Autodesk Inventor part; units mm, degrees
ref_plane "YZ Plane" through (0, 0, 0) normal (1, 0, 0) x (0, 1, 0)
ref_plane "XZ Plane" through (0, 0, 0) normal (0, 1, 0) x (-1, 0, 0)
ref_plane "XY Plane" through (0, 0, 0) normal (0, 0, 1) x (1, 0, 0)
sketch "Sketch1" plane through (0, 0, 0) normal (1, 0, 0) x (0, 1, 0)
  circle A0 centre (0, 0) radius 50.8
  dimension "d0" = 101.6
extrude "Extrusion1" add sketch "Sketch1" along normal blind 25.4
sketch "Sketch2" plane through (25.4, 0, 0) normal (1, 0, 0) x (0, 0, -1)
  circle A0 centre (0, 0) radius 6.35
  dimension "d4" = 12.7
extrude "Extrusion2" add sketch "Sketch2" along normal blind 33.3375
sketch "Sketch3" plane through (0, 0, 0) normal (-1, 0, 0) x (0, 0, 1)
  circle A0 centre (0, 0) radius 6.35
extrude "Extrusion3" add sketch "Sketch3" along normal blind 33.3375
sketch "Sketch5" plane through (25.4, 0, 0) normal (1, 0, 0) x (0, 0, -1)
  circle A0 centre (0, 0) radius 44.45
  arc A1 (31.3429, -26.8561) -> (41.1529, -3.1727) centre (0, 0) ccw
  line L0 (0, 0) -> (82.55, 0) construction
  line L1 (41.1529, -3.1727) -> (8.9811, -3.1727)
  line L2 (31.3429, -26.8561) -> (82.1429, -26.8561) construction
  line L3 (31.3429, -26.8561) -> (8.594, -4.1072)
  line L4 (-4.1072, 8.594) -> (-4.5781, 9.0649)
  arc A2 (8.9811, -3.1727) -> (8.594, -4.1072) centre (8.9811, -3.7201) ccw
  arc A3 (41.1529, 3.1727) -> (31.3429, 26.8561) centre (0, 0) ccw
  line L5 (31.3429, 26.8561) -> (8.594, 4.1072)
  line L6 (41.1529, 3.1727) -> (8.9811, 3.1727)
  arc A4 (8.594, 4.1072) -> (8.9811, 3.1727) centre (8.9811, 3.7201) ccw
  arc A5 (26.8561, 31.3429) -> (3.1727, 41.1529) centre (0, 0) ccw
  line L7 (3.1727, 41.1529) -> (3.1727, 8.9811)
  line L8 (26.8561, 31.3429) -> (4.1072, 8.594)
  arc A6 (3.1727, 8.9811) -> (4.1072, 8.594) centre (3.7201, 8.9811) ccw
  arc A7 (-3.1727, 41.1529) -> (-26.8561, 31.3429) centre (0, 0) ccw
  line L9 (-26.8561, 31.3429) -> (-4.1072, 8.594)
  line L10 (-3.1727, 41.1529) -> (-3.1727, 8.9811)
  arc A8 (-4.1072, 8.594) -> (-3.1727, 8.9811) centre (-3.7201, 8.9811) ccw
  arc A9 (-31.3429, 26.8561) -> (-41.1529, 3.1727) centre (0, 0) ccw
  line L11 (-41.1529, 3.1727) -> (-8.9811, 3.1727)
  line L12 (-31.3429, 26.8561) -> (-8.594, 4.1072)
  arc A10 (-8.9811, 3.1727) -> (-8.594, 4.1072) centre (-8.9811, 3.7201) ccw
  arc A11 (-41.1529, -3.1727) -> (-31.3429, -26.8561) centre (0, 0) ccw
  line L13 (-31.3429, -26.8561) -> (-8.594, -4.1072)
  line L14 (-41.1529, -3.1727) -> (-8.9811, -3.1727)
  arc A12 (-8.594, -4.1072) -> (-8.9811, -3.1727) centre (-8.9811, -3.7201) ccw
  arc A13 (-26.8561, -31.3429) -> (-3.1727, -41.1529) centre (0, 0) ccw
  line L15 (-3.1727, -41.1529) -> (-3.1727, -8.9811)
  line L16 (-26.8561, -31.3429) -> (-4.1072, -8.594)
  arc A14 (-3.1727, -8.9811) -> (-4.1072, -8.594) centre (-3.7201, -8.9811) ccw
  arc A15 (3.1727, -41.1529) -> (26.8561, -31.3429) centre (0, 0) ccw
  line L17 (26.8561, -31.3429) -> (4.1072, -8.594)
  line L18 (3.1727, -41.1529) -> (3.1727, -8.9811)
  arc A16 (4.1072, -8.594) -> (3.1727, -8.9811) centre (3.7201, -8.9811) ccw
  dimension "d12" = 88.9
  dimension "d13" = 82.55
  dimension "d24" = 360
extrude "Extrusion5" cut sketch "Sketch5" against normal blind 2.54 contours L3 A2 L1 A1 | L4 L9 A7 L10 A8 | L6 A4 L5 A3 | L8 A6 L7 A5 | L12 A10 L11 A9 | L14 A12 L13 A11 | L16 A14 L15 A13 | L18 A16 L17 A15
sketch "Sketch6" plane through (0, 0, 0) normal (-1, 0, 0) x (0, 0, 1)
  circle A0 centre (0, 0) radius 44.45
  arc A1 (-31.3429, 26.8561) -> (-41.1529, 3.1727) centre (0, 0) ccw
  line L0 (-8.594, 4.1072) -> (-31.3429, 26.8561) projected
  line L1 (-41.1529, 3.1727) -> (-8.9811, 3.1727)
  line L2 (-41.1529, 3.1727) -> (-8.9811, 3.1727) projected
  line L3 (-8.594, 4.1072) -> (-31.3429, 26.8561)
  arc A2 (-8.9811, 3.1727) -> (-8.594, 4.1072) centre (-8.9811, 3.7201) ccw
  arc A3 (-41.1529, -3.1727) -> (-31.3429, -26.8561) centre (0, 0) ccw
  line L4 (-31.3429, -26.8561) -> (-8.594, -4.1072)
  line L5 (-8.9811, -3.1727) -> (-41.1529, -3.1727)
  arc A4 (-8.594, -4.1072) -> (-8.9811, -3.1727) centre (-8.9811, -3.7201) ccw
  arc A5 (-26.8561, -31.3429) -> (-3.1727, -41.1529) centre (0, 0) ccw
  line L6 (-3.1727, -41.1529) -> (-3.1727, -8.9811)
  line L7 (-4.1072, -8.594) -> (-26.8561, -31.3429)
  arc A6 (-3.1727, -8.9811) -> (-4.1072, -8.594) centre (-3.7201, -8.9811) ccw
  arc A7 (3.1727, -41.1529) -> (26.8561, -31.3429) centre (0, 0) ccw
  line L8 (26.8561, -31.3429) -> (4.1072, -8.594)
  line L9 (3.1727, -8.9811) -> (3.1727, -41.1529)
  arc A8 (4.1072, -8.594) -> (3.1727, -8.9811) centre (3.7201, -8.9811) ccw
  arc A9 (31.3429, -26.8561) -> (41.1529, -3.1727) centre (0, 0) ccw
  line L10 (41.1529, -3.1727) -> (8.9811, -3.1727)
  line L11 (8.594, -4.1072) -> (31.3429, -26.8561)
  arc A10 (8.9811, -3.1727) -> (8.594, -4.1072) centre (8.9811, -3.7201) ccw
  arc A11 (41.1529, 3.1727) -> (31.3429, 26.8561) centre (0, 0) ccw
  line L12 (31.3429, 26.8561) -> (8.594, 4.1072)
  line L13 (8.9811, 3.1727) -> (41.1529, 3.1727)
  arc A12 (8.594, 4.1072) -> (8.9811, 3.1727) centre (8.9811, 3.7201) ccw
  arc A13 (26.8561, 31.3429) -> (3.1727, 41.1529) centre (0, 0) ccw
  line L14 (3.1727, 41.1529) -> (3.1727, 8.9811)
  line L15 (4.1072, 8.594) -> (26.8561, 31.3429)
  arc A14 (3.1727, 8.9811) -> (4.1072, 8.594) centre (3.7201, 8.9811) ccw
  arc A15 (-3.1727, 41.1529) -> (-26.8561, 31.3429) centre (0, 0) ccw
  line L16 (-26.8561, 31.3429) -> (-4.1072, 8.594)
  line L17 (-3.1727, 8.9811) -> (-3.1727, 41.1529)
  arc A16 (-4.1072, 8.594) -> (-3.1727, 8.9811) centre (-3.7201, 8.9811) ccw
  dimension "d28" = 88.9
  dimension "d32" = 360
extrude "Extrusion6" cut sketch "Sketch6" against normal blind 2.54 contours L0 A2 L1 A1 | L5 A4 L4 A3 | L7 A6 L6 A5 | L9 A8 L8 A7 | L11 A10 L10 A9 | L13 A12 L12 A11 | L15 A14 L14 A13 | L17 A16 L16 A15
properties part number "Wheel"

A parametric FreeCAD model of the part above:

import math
import FreeCAD as App
import Part
import Sketcher
from FreeCAD import Vector
Q = App.Units.Quantity

doc = App.newDocument("Part")
params = doc.addObject("Spreadsheet::Sheet", "Params")
for row, (alias, value) in enumerate([
    ("sketch1_diameter", "4 in"),
    ("pad1_length", "1 in"),
    ("sketch2_diameter", "0.5 in"),
    ("pad2_length", "1.3125 in"),
    ("sketch3_diameter", "0.5 in"),
    ("pad3_length", "1.3125 in"),
    ("sketch4_radius", "1.625 in"),
    ("pocket1_length", "0.1 in"),
    ("sketch5_radius", "1.625 in"),
    ("pocket2_length", "0.1 in"),
], start=1):
    params.set(f"A{row}", alias)
    params.set(f"B{row}", "=" + value)
    params.setAlias(f"B{row}", alias)

body = doc.addObject("PartDesign::Body", "Body")

sketch1 = body.newObject("Sketcher::SketchObject", "Sketch")
sketch1.AttachmentSupport = (doc.getObject("YZ_Plane"), [""])
sketch1.MapMode = "FlatFace"
sketch1.addGeometry(Part.Circle(Vector(0, 0, 0), Vector(0, 0, 1), 50.8), False)
sketch1.addConstraint([
    Sketcher.Constraint("Coincident", 0, 3, -1, 1),
    Sketcher.Constraint("Diameter", 0, Q("4 in")),
])
sketch1.setExpression("Constraints[1]", "Params.sketch1_diameter")
pad1 = body.newObject("PartDesign::Pad", "Pad")
pad1.Profile = sketch1
pad1.setExpression("Length", "Params.pad1_length")

sketch2 = body.newObject("Sketcher::SketchObject", "Sketch001")
sketch2.AttachmentSupport = (doc.getObject("YZ_Plane"), [""])
sketch2.MapMode = "FlatFace"
sketch2.AttachmentOffset = App.Placement(Vector(0, 0, 1 * 25.4), App.Rotation())
sketch2.addGeometry(Part.Circle(Vector(0, 0, 0), Vector(0, 0, 1), 6.35), False)
sketch2.addConstraint([
    Sketcher.Constraint("Coincident", 0, 3, -1, 1),
    Sketcher.Constraint("Diameter", 0, Q("0.5 in")),
])
sketch2.setExpression("Constraints[1]", "Params.sketch2_diameter")
pad2 = body.newObject("PartDesign::Pad", "Pad001")
pad2.Profile = sketch2
pad2.setExpression("Length", "Params.pad2_length")

sketch3 = body.newObject("Sketcher::SketchObject", "Sketch002")
sketch3.AttachmentSupport = (doc.getObject("YZ_Plane"), [""])
sketch3.MapMode = "FlatFace"
sketch3.addGeometry(Part.Circle(Vector(0, 0, 0), Vector(0, 0, 1), 6.35), False)
sketch3.addConstraint([
    Sketcher.Constraint("Coincident", 0, 3, -1, 1),
    Sketcher.Constraint("Diameter", 0, Q("0.5 in")),
])
sketch3.setExpression("Constraints[1]", "Params.sketch3_diameter")
pad3 = body.newObject("PartDesign::Pad", "Pad002")
pad3.Profile = sketch3
pad3.setExpression("Length", "Params.pad3_length")
pad3.Reversed = True

sketch4 = body.newObject("Sketcher::SketchObject", "Sketch003")
sketch4.AttachmentSupport = (doc.getObject("YZ_Plane"), [""])
sketch4.MapMode = "FlatFace"
sketch4.AttachmentOffset = App.Placement(Vector(0, 0, 1 * 25.4), App.Rotation())
sketch4.addGeometry([
    Part.LineSegment(Vector(-4.1072, -8.594, 0), Vector(-26.8561, -31.3429, 0)),
    Part.ArcOfCircle(Part.Circle(Vector(0, 0, 0), Vector(0, 0, 1), 41.275019), math.radians(-130.591553), math.radians(-94.408522)),
    Part.LineSegment(Vector(-3.1727, -41.1529, 0), Vector(-3.1727, -8.9811, 0)),
    Part.ArcOfCircle(Part.Circle(Vector(-3.7201, -8.9811, 0), Vector(0, 0, 1), 0.5474), math.radians(0), math.radians(135)),
    Part.LineSegment(Vector(31.3429, 26.8561, 0), Vector(8.594, 4.1072, 0)),
    Part.ArcOfCircle(Part.Circle(Vector(8.9811, 3.7201, 0), Vector(0, 0, 1), 0.547442), math.radians(135), math.radians(270)),
    Part.LineSegment(Vector(8.9811, 3.1727, 0), Vector(41.1529, 3.1727, 0)),
    Part.ArcOfCircle(Part.Circle(Vector(0, 0, 0), Vector(0, 0, 1), 41.275023), math.radians(4.408522), math.radians(40.591553)),
    Part.LineSegment(Vector(3.1727, -8.9811, 0), Vector(3.1727, -41.1529, 0)),
    Part.ArcOfCircle(Part.Circle(Vector(0, 0, 0), Vector(0, 0, 1), 41.275023), math.radians(-85.591478), math.radians(-49.408447)),
    Part.LineSegment(Vector(26.8561, -31.3429, 0), Vector(4.1072, -8.594, 0)),
    Part.ArcOfCircle(Part.Circle(Vector(3.7201, -8.9811, 0), Vector(0, 0, 1), 0.547442), math.radians(45), math.radians(180)),
    Part.LineSegment(Vector(8.594, -4.1072, 0), Vector(31.3429, -26.8561, 0)),
    Part.ArcOfCircle(Part.Circle(Vector(0, 0, 0), Vector(0, 0, 1), 41.275019), math.radians(-40.591553), math.radians(-4.408522)),
    Part.LineSegment(Vector(41.1529, -3.1727, 0), Vector(8.9811, -3.1727, 0)),
    Part.ArcOfCircle(Part.Circle(Vector(8.9811, -3.7201, 0), Vector(0, 0, 1), 0.5474), math.radians(90), math.radians(225)),
    Part.LineSegment(Vector(4.1072, 8.594, 0), Vector(26.8561, 31.3429, 0)),
    Part.ArcOfCircle(Part.Circle(Vector(0, 0, 0), Vector(0, 0, 1), 41.275019), math.radians(49.408447), math.radians(85.591478)),
    Part.LineSegment(Vector(3.1727, 41.1529, 0), Vector(3.1727, 8.9811, 0)),
    Part.ArcOfCircle(Part.Circle(Vector(3.7201, 8.9811, 0), Vector(0, 0, 1), 0.5474), math.radians(180), math.radians(315)),
    Part.LineSegment(Vector(-3.1727, 8.9811, 0), Vector(-3.1727, 41.1529, 0)),
    Part.ArcOfCircle(Part.Circle(Vector(0, 0, 0), Vector(0, 0, 1), 41.275023), math.radians(94.408522), math.radians(130.591553)),
    Part.LineSegment(Vector(-26.8561, 31.3429, 0), Vector(-4.1072, 8.594, 0)),
    Part.ArcOfCircle(Part.Circle(Vector(-3.7201, 8.9811, 0), Vector(0, 0, 1), 0.547442), math.radians(-135), math.radians(0)),
    Part.LineSegment(Vector(-8.594, 4.1072, 0), Vector(-31.3429, 26.8561, 0)),
    Part.ArcOfCircle(Part.Circle(Vector(0, 0, 0), Vector(0, 0, 1), 41.275019), math.radians(139.408447), math.radians(175.591478)),
    Part.LineSegment(Vector(-41.1529, 3.1727, 0), Vector(-8.9811, 3.1727, 0)),
    Part.ArcOfCircle(Part.Circle(Vector(-8.9811, 3.7201, 0), Vector(0, 0, 1), 0.5474), math.radians(-90), math.radians(45)),
    Part.LineSegment(Vector(-8.9811, -3.1727, 0), Vector(-41.1529, -3.1727, 0)),
    Part.ArcOfCircle(Part.Circle(Vector(0, 0, 0), Vector(0, 0, 1), 41.275023), math.radians(-175.591478), math.radians(-139.408447)),
    Part.LineSegment(Vector(-31.3429, -26.8561, 0), Vector(-8.594, -4.1072, 0)),
    Part.ArcOfCircle(Part.Circle(Vector(-8.9811, -3.7201, 0), Vector(0, 0, 1), 0.547442), math.radians(-45), math.radians(90)),
], False)
sketch4.addConstraint([
    Sketcher.Constraint("Coincident", 0, 2, 1, 1),
    Sketcher.Constraint("Coincident", 1, 2, 2, 1),
    Sketcher.Constraint("Tangent", 2, 2, 3, 1),
    Sketcher.Constraint("Tangent", 3, 2, 0, 1),
    Sketcher.Constraint("Tangent", 4, 2, 5, 1),
    Sketcher.Constraint("Tangent", 5, 2, 6, 1),
    Sketcher.Constraint("Coincident", 6, 2, 7, 1),
    Sketcher.Constraint("Coincident", 7, 2, 4, 1),
    Sketcher.Constraint("Coincident", 8, 2, 9, 1),
    Sketcher.Constraint("Coincident", 9, 2, 10, 1),
    Sketcher.Constraint("Tangent", 10, 2, 11, 1),
    Sketcher.Constraint("Tangent", 11, 2, 8, 1),
    Sketcher.Constraint("Coincident", 12, 2, 13, 1),
    Sketcher.Constraint("Coincident", 13, 2, 14, 1),
    Sketcher.Constraint("Tangent", 14, 2, 15, 1),
    Sketcher.Constraint("Tangent", 15, 2, 12, 1),
    Sketcher.Constraint("Coincident", 16, 2, 17, 1),
    Sketcher.Constraint("Coincident", 17, 2, 18, 1),
    Sketcher.Constraint("Tangent", 18, 2, 19, 1),
    Sketcher.Constraint("Tangent", 19, 2, 16, 1),
    Sketcher.Constraint("Coincident", 20, 2, 21, 1),
    Sketcher.Constraint("Coincident", 21, 2, 22, 1),
    Sketcher.Constraint("Tangent", 22, 2, 23, 1),
    Sketcher.Constraint("Tangent", 23, 2, 20, 1),
    Sketcher.Constraint("Coincident", 24, 2, 25, 1),
    Sketcher.Constraint("Coincident", 25, 2, 26, 1),
    Sketcher.Constraint("Tangent", 26, 2, 27, 1),
    Sketcher.Constraint("Tangent", 27, 2, 24, 1),
    Sketcher.Constraint("Coincident", 28, 2, 29, 1),
    Sketcher.Constraint("Coincident", 29, 2, 30, 1),
    Sketcher.Constraint("Tangent", 30, 2, 31, 1),
    Sketcher.Constraint("Tangent", 31, 2, 28, 1),
    Sketcher.Constraint("Vertical", 2),
    Sketcher.Constraint("Horizontal", 6),
    Sketcher.Constraint("Vertical", 8),
    Sketcher.Constraint("Horizontal", 14),
    Sketcher.Constraint("Vertical", 18),
    Sketcher.Constraint("Vertical", 20),
    Sketcher.Constraint("Horizontal", 26),
    Sketcher.Constraint("Horizontal", 28),
    Sketcher.Constraint("Coincident", 1, 3, -1, 1),
    Sketcher.Constraint("Coincident", 7, 3, -1, 1),
    Sketcher.Constraint("Coincident", 9, 3, -1, 1),
    Sketcher.Constraint("Coincident", 13, 3, -1, 1),
    Sketcher.Constraint("Coincident", 17, 3, -1, 1),
    Sketcher.Constraint("Coincident", 21, 3, -1, 1),
    Sketcher.Constraint("Coincident", 25, 3, -1, 1),
    Sketcher.Constraint("Coincident", 29, 3, -1, 1),
    Sketcher.Constraint("Equal", 3, 5),
    Sketcher.Constraint("Equal", 1, 7),
    Sketcher.Constraint("Equal", 7, 9),
    Sketcher.Constraint("Equal", 5, 11),
    Sketcher.Constraint("Equal", 9, 13),
    Sketcher.Constraint("Equal", 11, 15),
    Sketcher.Constraint("Equal", 13, 17),
    Sketcher.Constraint("Equal", 15, 19),
    Sketcher.Constraint("Equal", 17, 21),
    Sketcher.Constraint("Equal", 19, 23),
    Sketcher.Constraint("Equal", 21, 25),
    Sketcher.Constraint("Equal", 23, 27),
    Sketcher.Constraint("Equal", 25, 29),
    Sketcher.Constraint("Equal", 27, 31),
    Sketcher.Constraint("Symmetric", 3, 3, 19, 3, -1, 1),
    Sketcher.Constraint("Symmetric", 11, 3, 23, 3, -1, 1),
    Sketcher.Constraint("Symmetric", 15, 3, 27, 3, -1, 1),
    Sketcher.Constraint("Symmetric", 5, 3, 31, 3, -1, 1),
    Sketcher.Constraint("Symmetric", 3, 3, 11, 3, -2),
    Sketcher.Constraint("Symmetric", 5, 3, 27, 3, -2),
    Sketcher.Constraint("Parallel", 0, 4),
    Sketcher.Constraint("Perpendicular", 4, 10),
    Sketcher.Constraint("Parallel", 10, 12),
    Sketcher.Constraint("Perpendicular", 12, 16),
    Sketcher.Constraint("Perpendicular", 16, 22),
    Sketcher.Constraint("Parallel", 22, 24),
    Sketcher.Constraint("Perpendicular", 24, 30),
    Sketcher.Constraint("Horizontal", 0, 2, 9, 2),
    Sketcher.Constraint("Equal", 28, 2),
    Sketcher.Constraint("Equal", 0, 4),
    Sketcher.Constraint("Radius", 1, Q("1.625 in")),
    Sketcher.Constraint("Radius", 3, 0.5474),
    Sketcher.Constraint("DistanceX", 6, 1, 6, 2, Q("1.2666 in")),
    Sketcher.Constraint("Distance", 0, Q("1.2666 in")),
])
sketch4.setExpression("Constraints[78]", "Params.sketch4_radius")
pocket1 = body.newObject("PartDesign::Pocket", "Pocket")
pocket1.Profile = sketch4
pocket1.setExpression("Length", "Params.pocket1_length")

sketch5 = body.newObject("Sketcher::SketchObject", "Sketch004")
sketch5.AttachmentSupport = (doc.getObject("YZ_Plane"), [""])
sketch5.MapMode = "FlatFace"
sketch5.addGeometry([
    Part.LineSegment(Vector(4.1072, -8.594, 0), Vector(26.8561, -31.3429, 0)),
    Part.ArcOfCircle(Part.Circle(Vector(0, 0, 0), Vector(0, 0, 1), 41.275019), math.radians(-85.591478), math.radians(-49.408447)),
    Part.LineSegment(Vector(3.1727, -41.1529, 0), Vector(3.1727, -8.9811, 0)),
    Part.ArcOfCircle(Part.Circle(Vector(3.7201, -8.9811, 0), Vector(0, 0, 1), 0.5474), math.radians(45), math.radians(180)),
    Part.LineSegment(Vector(-3.1727, -8.9811, 0), Vector(-3.1727, -41.1529, 0)),
    Part.ArcOfCircle(Part.Circle(Vector(0, 0, 0), Vector(0, 0, 1), 41.275023), math.radians(-130.591553), math.radians(-94.408522)),
    Part.LineSegment(Vector(-26.8561, -31.3429, 0), Vector(-4.1072, -8.594, 0)),
    Part.ArcOfCircle(Part.Circle(Vector(-3.7201, -8.9811, 0), Vector(0, 0, 1), 0.547442), math.radians(0), math.radians(135)),
    Part.LineSegment(Vector(-8.594, -4.1072, 0), Vector(-31.3429, -26.8561, 0)),
    Part.ArcOfCircle(Part.Circle(Vector(0, 0, 0), Vector(0, 0, 1), 41.275019), math.radians(-175.591478), math.radians(-139.408447)),
    Part.LineSegment(Vector(-41.1529, -3.1727, 0), Vector(-8.9811, -3.1727, 0)),
    Part.ArcOfCircle(Part.Circle(Vector(-8.9811, -3.7201, 0), Vector(0, 0, 1), 0.5474), math.radians(-45), math.radians(90)),
    Part.LineSegment(Vector(-8.9811, 3.1727, 0), Vector(-41.1529, 3.1727, 0)),
    Part.ArcOfCircle(Part.Circle(Vector(0, 0, 0), Vector(0, 0, 1), 41.275023), math.radians(139.408447), math.radians(175.591478)),
    Part.LineSegment(Vector(-31.3429, 26.8561, 0), Vector(-8.594, 4.1072, 0)),
    Part.ArcOfCircle(Part.Circle(Vector(-8.9811, 3.7201, 0), Vector(0, 0, 1), 0.547442), math.radians(-90), math.radians(45)),
    Part.LineSegment(Vector(-4.1072, 8.594, 0), Vector(-26.8561, 31.3429, 0)),
    Part.ArcOfCircle(Part.Circle(Vector(0, 0, 0), Vector(0, 0, 1), 41.275019), math.radians(94.408522), math.radians(130.591553)),
    Part.LineSegment(Vector(-3.1727, 41.1529, 0), Vector(-3.1727, 8.9811, 0)),
    Part.ArcOfCircle(Part.Circle(Vector(-3.7201, 8.9811, 0), Vector(0, 0, 1), 0.5474), math.radians(-135), math.radians(0)),
    Part.LineSegment(Vector(3.1727, 8.9811, 0), Vector(3.1727, 41.1529, 0)),
    Part.ArcOfCircle(Part.Circle(Vector(0, 0, 0), Vector(0, 0, 1), 41.275023), math.radians(49.408447), math.radians(85.591478)),
    Part.LineSegment(Vector(26.8561, 31.3429, 0), Vector(4.1072, 8.594, 0)),
    Part.ArcOfCircle(Part.Circle(Vector(3.7201, 8.9811, 0), Vector(0, 0, 1), 0.547442), math.radians(180), math.radians(315)),
    Part.LineSegment(Vector(8.594, 4.1072, 0), Vector(31.3429, 26.8561, 0)),
    Part.ArcOfCircle(Part.Circle(Vector(0, 0, 0), Vector(0, 0, 1), 41.275019), math.radians(4.408522), math.radians(40.591553)),
    Part.LineSegment(Vector(41.1529, 3.1727, 0), Vector(8.9811, 3.1727, 0)),
    Part.ArcOfCircle(Part.Circle(Vector(8.9811, 3.7201, 0), Vector(0, 0, 1), 0.5474), math.radians(135), math.radians(270)),
    Part.LineSegment(Vector(8.9811, -3.1727, 0), Vector(41.1529, -3.1727, 0)),
    Part.ArcOfCircle(Part.Circle(Vector(0, 0, 0), Vector(0, 0, 1), 41.275023), math.radians(-40.591553), math.radians(-4.408522)),
    Part.LineSegment(Vector(31.3429, -26.8561, 0), Vector(8.594, -4.1072, 0)),
    Part.ArcOfCircle(Part.Circle(Vector(8.9811, -3.7201, 0), Vector(0, 0, 1), 0.547442), math.radians(90), math.radians(225)),
], False)
sketch5.addConstraint([
    Sketcher.Constraint("Coincident", 0, 2, 1, 2),
    Sketcher.Constraint("Coincident", 1, 1, 2, 1),
    Sketcher.Constraint("Tangent", 2, 2, 3, 2),
    Sketcher.Constraint("Tangent", 3, 1, 0, 1),
    Sketcher.Constraint("Coincident", 4, 2, 5, 2),
    Sketcher.Constraint("Coincident", 5, 1, 6, 1),
    Sketcher.Constraint("Tangent", 6, 2, 7, 2),
    Sketcher.Constraint("Tangent", 7, 1, 4, 1),
    Sketcher.Constraint("Coincident", 8, 2, 9, 2),
    Sketcher.Constraint("Coincident", 9, 1, 10, 1),
    Sketcher.Constraint("Tangent", 10, 2, 11, 2),
    Sketcher.Constraint("Tangent", 11, 1, 8, 1),
    Sketcher.Constraint("Coincident", 12, 2, 13, 2),
    Sketcher.Constraint("Coincident", 13, 1, 14, 1),
    Sketcher.Constraint("Tangent", 14, 2, 15, 2),
    Sketcher.Constraint("Tangent", 15, 1, 12, 1),
    Sketcher.Constraint("Coincident", 16, 2, 17, 2),
    Sketcher.Constraint("Coincident", 17, 1, 18, 1),
    Sketcher.Constraint("Tangent", 18, 2, 19, 2),
    Sketcher.Constraint("Tangent", 19, 1, 16, 1),
    Sketcher.Constraint("Coincident", 20, 2, 21, 2),
    Sketcher.Constraint("Coincident", 21, 1, 22, 1),
    Sketcher.Constraint("Tangent", 22, 2, 23, 2),
    Sketcher.Constraint("Tangent", 23, 1, 20, 1),
    Sketcher.Constraint("Coincident", 24, 2, 25, 2),
    Sketcher.Constraint("Coincident", 25, 1, 26, 1),
    Sketcher.Constraint("Tangent", 26, 2, 27, 2),
    Sketcher.Constraint("Tangent", 27, 1, 24, 1),
    Sketcher.Constraint("Coincident", 28, 2, 29, 2),
    Sketcher.Constraint("Coincident", 29, 1, 30, 1),
    Sketcher.Constraint("Tangent", 30, 2, 31, 2),
    Sketcher.Constraint("Tangent", 31, 1, 28, 1),
    Sketcher.Constraint("Vertical", 2),
    Sketcher.Constraint("Vertical", 4),
    Sketcher.Constraint("Horizontal", 10),
    Sketcher.Constraint("Horizontal", 12),
    Sketcher.Constraint("Vertical", 18),
    Sketcher.Constraint("Vertical", 20),
    Sketcher.Constraint("Horizontal", 26),
    Sketcher.Constraint("Horizontal", 28),
    Sketcher.Constraint("Coincident", 1, 3, -1, 1),
    Sketcher.Constraint("Coincident", 5, 3, -1, 1),
    Sketcher.Constraint("Coincident", 9, 3, -1, 1),
    Sketcher.Constraint("Coincident", 13, 3, -1, 1),
    Sketcher.Constraint("Coincident", 17, 3, -1, 1),
    Sketcher.Constraint("Coincident", 21, 3, -1, 1),
    Sketcher.Constraint("Coincident", 25, 3, -1, 1),
    Sketcher.Constraint("Coincident", 29, 3, -1, 1),
    Sketcher.Constraint("Equal", 1, 5),
    Sketcher.Constraint("Equal", 3, 7),
    Sketcher.Constraint("Equal", 5, 9),
    Sketcher.Constraint("Equal", 7, 11),
    Sketcher.Constraint("Equal", 9, 13),
    Sketcher.Constraint("Equal", 11, 15),
    Sketcher.Constraint("Equal", 13, 17),
    Sketcher.Constraint("Equal", 15, 19),
    Sketcher.Constraint("Equal", 17, 21),
    Sketcher.Constraint("Equal", 19, 23),
    Sketcher.Constraint("Equal", 21, 25),
    Sketcher.Constraint("Equal", 23, 27),
    Sketcher.Constraint("Equal", 25, 29),
    Sketcher.Constraint("Equal", 27, 31),
    Sketcher.Constraint("Symmetric", 3, 3, 19, 3, -1, 1),
    Sketcher.Constraint("Symmetric", 7, 3, 23, 3, -1, 1),
    Sketcher.Constraint("Symmetric", 11, 3, 27, 3, -1, 1),
    Sketcher.Constraint("Symmetric", 15, 3, 31, 3, -1, 1),
    Sketcher.Constraint("Symmetric", 3, 3, 7, 3, -2),
    Sketcher.Constraint("Symmetric", 15, 3, 27, 3, -2),
    Sketcher.Constraint("Perpendicular", 0, 6),
    Sketcher.Constraint("Parallel", 6, 8),
    Sketcher.Constraint("Perpendicular", 8, 14),
    Sketcher.Constraint("Parallel", 14, 16),
    Sketcher.Constraint("Perpendicular", 16, 22),
    Sketcher.Constraint("Parallel", 22, 24),
    Sketcher.Constraint("Perpendicular", 24, 30),
    Sketcher.Constraint("Horizontal", 0, 2, 5, 1),
    Sketcher.Constraint("Equal", 28, 2),
    Sketcher.Constraint("Equal", 6, 8),
    Sketcher.Constraint("Radius", 1, Q("1.625 in")),
    Sketcher.Constraint("Radius", 3, 0.5474),
    Sketcher.Constraint("DistanceX", 10, 1, 10, 2, Q("1.2666 in")),
    Sketcher.Constraint("Distance", 0, Q("1.2666 in")),
])
sketch5.setExpression("Constraints[78]", "Params.sketch5_radius")
pocket2 = body.newObject("PartDesign::Pocket", "Pocket001")
pocket2.Profile = sketch5
pocket2.setExpression("Length", "Params.pocket2_length")
pocket2.Reversed = True

doc.recompute()
